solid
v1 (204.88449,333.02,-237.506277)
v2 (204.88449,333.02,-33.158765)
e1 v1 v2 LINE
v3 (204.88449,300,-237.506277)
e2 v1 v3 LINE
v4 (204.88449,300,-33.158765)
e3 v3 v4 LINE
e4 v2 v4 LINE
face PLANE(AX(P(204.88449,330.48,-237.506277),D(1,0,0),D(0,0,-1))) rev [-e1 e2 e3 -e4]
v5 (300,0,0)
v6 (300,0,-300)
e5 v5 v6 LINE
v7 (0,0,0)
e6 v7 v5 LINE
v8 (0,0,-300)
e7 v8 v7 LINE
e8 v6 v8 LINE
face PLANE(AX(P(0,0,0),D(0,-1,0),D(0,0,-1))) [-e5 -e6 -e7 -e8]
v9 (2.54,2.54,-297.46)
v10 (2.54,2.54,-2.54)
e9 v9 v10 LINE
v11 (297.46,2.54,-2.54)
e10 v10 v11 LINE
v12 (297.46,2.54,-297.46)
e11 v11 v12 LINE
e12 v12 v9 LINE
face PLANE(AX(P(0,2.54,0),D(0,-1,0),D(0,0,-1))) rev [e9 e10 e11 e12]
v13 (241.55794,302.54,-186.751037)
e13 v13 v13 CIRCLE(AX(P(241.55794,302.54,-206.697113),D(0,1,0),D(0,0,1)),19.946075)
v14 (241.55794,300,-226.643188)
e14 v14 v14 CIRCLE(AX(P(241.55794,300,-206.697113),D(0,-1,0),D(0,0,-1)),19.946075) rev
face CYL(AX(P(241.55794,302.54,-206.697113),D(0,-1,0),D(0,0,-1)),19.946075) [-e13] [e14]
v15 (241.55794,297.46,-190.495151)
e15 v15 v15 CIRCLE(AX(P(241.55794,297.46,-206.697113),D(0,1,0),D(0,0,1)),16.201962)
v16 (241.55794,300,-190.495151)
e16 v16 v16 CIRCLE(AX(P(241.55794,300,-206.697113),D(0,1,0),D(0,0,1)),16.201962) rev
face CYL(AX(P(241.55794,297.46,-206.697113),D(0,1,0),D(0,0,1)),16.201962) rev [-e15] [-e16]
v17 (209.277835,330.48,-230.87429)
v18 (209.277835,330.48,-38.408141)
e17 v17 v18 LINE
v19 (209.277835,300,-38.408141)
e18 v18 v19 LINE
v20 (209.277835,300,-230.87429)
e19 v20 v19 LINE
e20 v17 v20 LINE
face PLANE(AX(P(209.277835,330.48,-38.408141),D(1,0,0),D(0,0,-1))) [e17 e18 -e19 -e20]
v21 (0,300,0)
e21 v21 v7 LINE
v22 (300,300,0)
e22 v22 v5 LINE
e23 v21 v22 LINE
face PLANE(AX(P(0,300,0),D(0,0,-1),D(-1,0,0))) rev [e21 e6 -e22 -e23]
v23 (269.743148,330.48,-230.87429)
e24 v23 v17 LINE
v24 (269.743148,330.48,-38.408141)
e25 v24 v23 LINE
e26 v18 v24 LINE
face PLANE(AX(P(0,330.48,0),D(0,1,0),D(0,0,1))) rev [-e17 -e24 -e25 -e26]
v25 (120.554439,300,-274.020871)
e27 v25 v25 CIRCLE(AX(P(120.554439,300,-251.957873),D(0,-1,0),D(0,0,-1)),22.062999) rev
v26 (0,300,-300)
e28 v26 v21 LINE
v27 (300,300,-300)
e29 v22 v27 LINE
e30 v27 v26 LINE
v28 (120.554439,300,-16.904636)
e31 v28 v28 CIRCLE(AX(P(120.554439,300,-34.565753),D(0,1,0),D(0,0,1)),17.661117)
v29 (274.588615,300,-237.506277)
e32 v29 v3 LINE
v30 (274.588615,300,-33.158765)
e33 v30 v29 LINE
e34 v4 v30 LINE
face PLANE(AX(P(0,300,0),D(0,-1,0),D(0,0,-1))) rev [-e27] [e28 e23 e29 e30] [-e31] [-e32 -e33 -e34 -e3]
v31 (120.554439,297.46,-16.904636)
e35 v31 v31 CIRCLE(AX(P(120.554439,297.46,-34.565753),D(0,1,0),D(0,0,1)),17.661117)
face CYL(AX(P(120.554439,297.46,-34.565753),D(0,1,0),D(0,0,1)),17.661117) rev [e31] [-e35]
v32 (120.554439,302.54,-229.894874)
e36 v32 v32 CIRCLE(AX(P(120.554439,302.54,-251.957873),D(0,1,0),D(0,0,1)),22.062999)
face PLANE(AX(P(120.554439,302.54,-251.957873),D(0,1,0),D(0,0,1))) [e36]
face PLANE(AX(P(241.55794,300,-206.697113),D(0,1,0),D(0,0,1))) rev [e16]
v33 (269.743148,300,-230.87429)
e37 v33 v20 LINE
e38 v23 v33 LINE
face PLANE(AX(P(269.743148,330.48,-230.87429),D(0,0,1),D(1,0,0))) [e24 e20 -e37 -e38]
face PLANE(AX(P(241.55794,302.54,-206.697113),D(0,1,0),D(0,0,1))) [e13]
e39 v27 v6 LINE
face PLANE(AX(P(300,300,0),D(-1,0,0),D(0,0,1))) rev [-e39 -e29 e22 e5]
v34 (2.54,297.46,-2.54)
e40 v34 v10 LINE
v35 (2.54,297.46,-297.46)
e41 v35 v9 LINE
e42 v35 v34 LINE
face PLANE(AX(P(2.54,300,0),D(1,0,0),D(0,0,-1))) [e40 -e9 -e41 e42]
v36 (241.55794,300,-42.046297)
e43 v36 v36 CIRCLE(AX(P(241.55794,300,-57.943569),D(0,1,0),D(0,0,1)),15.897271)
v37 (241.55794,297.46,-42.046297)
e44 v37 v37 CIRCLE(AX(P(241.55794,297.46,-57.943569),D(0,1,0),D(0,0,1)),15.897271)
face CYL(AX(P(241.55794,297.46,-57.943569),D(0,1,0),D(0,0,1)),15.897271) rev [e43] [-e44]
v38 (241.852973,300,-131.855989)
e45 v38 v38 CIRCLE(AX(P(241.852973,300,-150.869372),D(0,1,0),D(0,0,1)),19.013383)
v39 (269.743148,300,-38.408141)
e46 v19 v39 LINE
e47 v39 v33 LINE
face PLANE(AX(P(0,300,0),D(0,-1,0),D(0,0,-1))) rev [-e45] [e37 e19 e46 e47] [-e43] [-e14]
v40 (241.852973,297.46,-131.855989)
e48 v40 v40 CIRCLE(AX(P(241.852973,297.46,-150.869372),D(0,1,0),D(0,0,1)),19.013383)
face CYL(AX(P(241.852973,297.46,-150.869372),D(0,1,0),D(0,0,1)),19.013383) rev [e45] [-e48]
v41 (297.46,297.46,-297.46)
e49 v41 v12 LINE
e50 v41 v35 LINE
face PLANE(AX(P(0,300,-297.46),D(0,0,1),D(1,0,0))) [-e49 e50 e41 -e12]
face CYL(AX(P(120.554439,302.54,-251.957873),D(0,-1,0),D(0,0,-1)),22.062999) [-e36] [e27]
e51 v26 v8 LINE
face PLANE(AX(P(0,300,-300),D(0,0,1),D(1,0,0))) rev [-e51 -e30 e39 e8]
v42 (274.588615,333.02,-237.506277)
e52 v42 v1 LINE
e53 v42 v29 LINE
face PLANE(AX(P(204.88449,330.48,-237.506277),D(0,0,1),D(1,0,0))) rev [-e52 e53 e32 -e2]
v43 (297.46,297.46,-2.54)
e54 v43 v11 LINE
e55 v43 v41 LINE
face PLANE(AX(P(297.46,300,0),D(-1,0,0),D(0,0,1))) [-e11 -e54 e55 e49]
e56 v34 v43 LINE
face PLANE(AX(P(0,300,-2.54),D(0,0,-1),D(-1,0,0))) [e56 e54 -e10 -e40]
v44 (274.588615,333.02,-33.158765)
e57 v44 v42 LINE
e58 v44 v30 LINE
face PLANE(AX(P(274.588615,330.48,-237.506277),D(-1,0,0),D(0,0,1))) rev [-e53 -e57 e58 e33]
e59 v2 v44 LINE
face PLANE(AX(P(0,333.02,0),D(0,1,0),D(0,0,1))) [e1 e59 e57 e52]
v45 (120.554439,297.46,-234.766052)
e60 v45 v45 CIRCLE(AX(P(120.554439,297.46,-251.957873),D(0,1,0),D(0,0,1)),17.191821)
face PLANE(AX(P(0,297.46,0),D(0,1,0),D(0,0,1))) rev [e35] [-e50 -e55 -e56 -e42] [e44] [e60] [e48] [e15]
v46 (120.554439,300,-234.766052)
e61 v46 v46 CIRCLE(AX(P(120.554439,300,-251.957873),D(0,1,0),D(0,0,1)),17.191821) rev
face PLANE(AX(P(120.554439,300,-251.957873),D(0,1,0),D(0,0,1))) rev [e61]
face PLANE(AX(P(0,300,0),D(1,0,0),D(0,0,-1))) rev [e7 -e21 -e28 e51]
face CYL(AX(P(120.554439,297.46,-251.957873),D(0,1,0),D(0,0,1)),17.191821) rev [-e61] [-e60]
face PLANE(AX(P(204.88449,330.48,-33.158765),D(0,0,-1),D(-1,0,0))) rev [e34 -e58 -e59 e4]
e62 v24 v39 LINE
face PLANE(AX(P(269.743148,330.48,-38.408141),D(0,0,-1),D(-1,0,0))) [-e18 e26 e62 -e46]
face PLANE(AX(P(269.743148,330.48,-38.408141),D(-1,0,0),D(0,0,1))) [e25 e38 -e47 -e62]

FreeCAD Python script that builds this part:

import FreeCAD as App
import Part
import Sketcher
from FreeCAD import Vector
Q = App.Units.Quantity


def faces_at(feature, points):
    """Names of the faces that lie closest to the given points."""
    faces = feature.Shape.Faces
    near = lambda p: min(range(len(faces)), key=lambda i: faces[i].distToShape(Part.Vertex(*p))[0])
    return sorted({f"Face{near(p) + 1}" for p in points})


def add_polygon(sketch, points):
    """Adds a closed chain of lines whose ends are joined by coincident constraints."""
    first, n = sketch.GeometryCount, len(points)
    for a, b in zip(points, points[1:] + points[:1]):
        sketch.addGeometry(Part.LineSegment(App.Vector(*a, 0), App.Vector(*b, 0)), False)
    for i in range(n):
        sketch.addConstraint(Sketcher.Constraint("Coincident", first + i, 2, first + (i + 1) % n, 1))

doc = App.newDocument("Part")
body = doc.addObject("PartDesign::Body", "Body")

sketch1 = body.newObject("Sketcher::SketchObject", "Sketch")
sketch1.AttachmentSupport = (doc.getObject("XZ_Plane"), [""])
sketch1.MapMode = "FlatFace"
add_polygon(sketch1, [(0, -300), (0, 0), (300, 0), (300, -300)])
sketch1.addConstraint(Sketcher.Constraint("Vertical", 0))
sketch1.addConstraint(Sketcher.Constraint("Horizontal", 1))
sketch1.addConstraint(Sketcher.Constraint("Vertical", 2))
sketch1.addConstraint(Sketcher.Constraint("Horizontal", 3))
sketch1.addConstraint(Sketcher.Constraint("Coincident", 0, 2, -1, 1))
sketch1.addConstraint(Sketcher.Constraint("Equal", 3, 0))
sketch1.addConstraint(Sketcher.Constraint("DistanceX", 1, 1, 1, 2, Q("300 mm")))
pad1 = body.newObject("PartDesign::Pad", "Pad")
pad1.Profile = sketch1
pad1.Length = 300
pad1.Reversed = True
doc.recompute()

thickness = body.newObject("PartDesign::Thickness", "Thickness")
thickness.Base = (pad1, faces_at(pad1, [(150, 300, -150)]))
thickness.Value = Q("0.1 in")
thickness.Reversed = True
thickness.Join = "Intersection"

sketch2 = body.newObject("Sketcher::SketchObject", "Sketch001")
sketch2.AttachmentSupport = (doc.getObject("XZ_Plane"), [""])
sketch2.MapMode = "FlatFace"
sketch2.AttachmentOffset = App.Placement(Vector(0, 0, -300), App.Rotation())
add_polygon(sketch2, [(0, -300), (0, 0), (300, 0), (300, -300)])
sketch2.addConstraint(Sketcher.Constraint("Vertical", 0))
sketch2.addConstraint(Sketcher.Constraint("Horizontal", 1))
sketch2.addConstraint(Sketcher.Constraint("Vertical", 2))
sketch2.addConstraint(Sketcher.Constraint("Horizontal", 3))
sketch2.addConstraint(Sketcher.Constraint("Coincident", 0, 2, -1, 1))
sketch2.addConstraint(Sketcher.Constraint("Equal", 3, 0))
sketch2.addConstraint(Sketcher.Constraint("DistanceX", 1, 1, 1, 2, Q("300 mm")))
pad2 = body.newObject("PartDesign::Pad", "Pad001")
pad2.Profile = sketch2
pad2.Length = Q("0.1 in")

sketch3 = body.newObject("Sketcher::SketchObject", "Sketch002")
sketch3.AttachmentSupport = (doc.getObject("XZ_Plane"), [""])
sketch3.MapMode = "FlatFace"
sketch3.AttachmentOffset = App.Placement(Vector(0, 0, -300), App.Rotation())
sketch3.addGeometry(Part.Circle(Vector(242, -58, 0), Vector(0, 0, 1), 16), False)
sketch3.addGeometry(Part.Circle(Vector(242, -207, 0), Vector(0, 0, 1), 16), False)
sketch3.addGeometry(Part.Circle(Vector(121, -252, 0), Vector(0, 0, 1), 17), False)
sketch3.addGeometry(Part.Circle(Vector(121, -35, 0), Vector(0, 0, 1), 18), False)
sketch3.addConstraint(Sketcher.Constraint("Vertical", 0, 3, 1, 3))
sketch3.addConstraint(Sketcher.Constraint("Vertical", 2, 3, 3, 3))
sketch3.addConstraint(Sketcher.Constraint("Diameter", 0, Q("31.794542 mm")))
sketch3.addConstraint(Sketcher.Constraint("Diameter", 1, Q("32.403924 mm")))
sketch3.addConstraint(Sketcher.Constraint("Diameter", 2, Q("34.383643 mm")))
sketch3.addConstraint(Sketcher.Constraint("Diameter", 3, Q("35.322234 mm")))
sketch3.addConstraint(Sketcher.Constraint("DistanceX", 2, 3, 1, 3, Q("121.003501 mm")))
sketch3.addConstraint(Sketcher.Constraint("DistanceX", -1, 1, 0, 3, Q("241.55794 mm")))
sketch3.addConstraint(Sketcher.Constraint("DistanceY", 0, 3, -1, 1, Q("57.943569 mm")))
sketch3.addConstraint(Sketcher.Constraint("DistanceY", 2, 3, 1, 3, Q("45.26076 mm")))
sketch3.addConstraint(Sketcher.Constraint("DistanceY", 1, 3, 3, 3, Q("172.13136 mm")))
sketch3.addConstraint(Sketcher.Constraint("DistanceY", 1, 3, -1, 1, Q("206.697113 mm")))
pocket1 = body.newObject("PartDesign::Pocket", "Pocket")
pocket1.Profile = sketch3
pocket1.Length = Q("0.1 in")
pocket1.Reversed = True

sketch4 = body.newObject("Sketcher::SketchObject", "Sketch003")
sketch4.AttachmentSupport = (doc.getObject("XZ_Plane"), [""])
sketch4.MapMode = "FlatFace"
sketch4.AttachmentOffset = App.Placement(Vector(0, 0, -300), App.Rotation())
sketch4.addGeometry(Part.Circle(Vector(121, -252, 0), Vector(0, 0, 1), 22), False)
sketch4.addGeometry(Part.Circle(Vector(242, -207, 0), Vector(0, 0, 1), 20), False)
sketch4.addConstraint(Sketcher.Constraint("Diameter", 1, Q("39.892151 mm")))
sketch4.addConstraint(Sketcher.Constraint("Diameter", 0, Q("44.125997 mm")))
sketch4.addConstraint(Sketcher.Constraint("DistanceX", 0, 3, 1, 3, Q("121.003501 mm")))
sketch4.addConstraint(Sketcher.Constraint("DistanceX", -1, 1, 0, 3, Q("120.554439 mm")))
sketch4.addConstraint(Sketcher.Constraint("DistanceY", 0, 3, 1, 3, Q("45.26076 mm")))
sketch4.addConstraint(Sketcher.Constraint("DistanceY", 0, 3, -1, 1, Q("251.957873 mm")))
pad3 = body.newObject("PartDesign::Pad", "Pad002")
pad3.Profile = sketch4
pad3.Length = Q("0.1 in")
pad3.Reversed = True

sketch5 = body.newObject("Sketcher::SketchObject", "Sketch004")
sketch5.AttachmentSupport = (doc.getObject("XZ_Plane"), [""])
sketch5.MapMode = "FlatFace"
sketch5.AttachmentOffset = App.Placement(Vector(0, 0, -300), App.Rotation())
sketch5.addGeometry(Part.Circle(Vector(242, -151, 0), Vector(0, 0, 1), 19), False)
sketch5.addConstraint(Sketcher.Constraint("Diameter", 0, Q("38.026766 mm")))
sketch5.addConstraint(Sketcher.Constraint("DistanceX", -1, 1, 0, 3, Q("241.852973 mm")))
sketch5.addConstraint(Sketcher.Constraint("DistanceY", 0, 3, -1, 1, Q("150.869372 mm")))
pocket2 = body.newObject("PartDesign::Pocket", "Pocket001")
pocket2.Profile = sketch5
pocket2.Length = Q("0.1 in")
pocket2.Reversed = True

sketch6 = body.newObject("Sketcher::SketchObject", "Sketch005")
sketch6.AttachmentSupport = (doc.getObject("XZ_Plane"), [""])
sketch6.MapMode = "FlatFace"
sketch6.AttachmentOffset = App.Placement(Vector(0, 0, -300), App.Rotation())
add_polygon(sketch6, [(205, -238), (205, -33), (275, -33), (275, -238)])
add_polygon(sketch6, [(270, -38), (209, -38), (209, -231), (270, -231)])
sketch6.addConstraint(Sketcher.Constraint("Vertical", 0))
sketch6.addConstraint(Sketcher.Constraint("Horizontal", 1))
sketch6.addConstraint(Sketcher.Constraint("Vertical", 2))
sketch6.addConstraint(Sketcher.Constraint("Horizontal", 3))
sketch6.addConstraint(Sketcher.Constraint("Horizontal", 4))
sketch6.addConstraint(Sketcher.Constraint("Vertical", 5))
sketch6.addConstraint(Sketcher.Constraint("Horizontal", 6))
sketch6.addConstraint(Sketcher.Constraint("Vertical", 7))
sketch6.addConstraint(Sketcher.Constraint("DistanceY", 5, 2, 5, 1, Q("192.466149 mm")))
sketch6.addConstraint(Sketcher.Constraint("DistanceX", 1, 1, 1, 2, Q("69.704125 mm")))
sketch6.addConstraint(Sketcher.Constraint("DistanceX", 4, 2, 4, 1, Q("60.465313 mm")))
sketch6.addConstraint(Sketcher.Constraint("DistanceY", 0, 1, 0, 2, Q("204.347512 mm")))
sketch6.addConstraint(Sketcher.Constraint("DistanceX", -1, 1, 0, 2, Q("204.88449 mm")))
sketch6.addConstraint(Sketcher.Constraint("DistanceY", 4, 2, -1, 1, Q("38.408141 mm")))
sketch6.addConstraint(Sketcher.Constraint("DistanceX", 4, 2, 1, 2, Q("65.31078 mm")))
sketch6.addConstraint(Sketcher.Constraint("DistanceY", 0, 2, -1, 1, Q("33.158765 mm")))
pad4 = body.newObject("PartDesign::Pad", "Pad003")
pad4.Profile = sketch6
pad4.Length = Q("1.2 in")
pad4.Reversed = True

sketch7 = body.newObject("Sketcher::SketchObject", "Sketch006")
sketch7.AttachmentSupport = (doc.getObject("XZ_Plane"), [""])
sketch7.MapMode = "FlatFace"
sketch7.AttachmentOffset = App.Placement(Vector(0, 0, -330.48), App.Rotation())
add_polygon(sketch7, [(205, -238), (205, -33), (275, -33), (275, -238)])
sketch7.addConstraint(Sketcher.Constraint("Vertical", 0))
sketch7.addConstraint(Sketcher.Constraint("Horizontal", 1))
sketch7.addConstraint(Sketcher.Constraint("Vertical", 2))
sketch7.addConstraint(Sketcher.Constraint("Horizontal", 3))
sketch7.addConstraint(Sketcher.Constraint("DistanceX", 1, 1, 1, 2, Q("69.704125 mm")))
sketch7.addConstraint(Sketcher.Constraint("DistanceY", 0, 1, 0, 2, Q("204.347512 mm")))
sketch7.addConstraint(Sketcher.Constraint("DistanceX", -1, 1, 0, 2, Q("204.88449 mm")))
sketch7.addConstraint(Sketcher.Constraint("DistanceY", 0, 2, -1, 1, Q("33.158765 mm")))
pad5 = body.newObject("PartDesign::Pad", "Pad004")
pad5.Profile = sketch7
pad5.Length = Q("0.1 in")
pad5.Reversed = True

doc.recompute()
